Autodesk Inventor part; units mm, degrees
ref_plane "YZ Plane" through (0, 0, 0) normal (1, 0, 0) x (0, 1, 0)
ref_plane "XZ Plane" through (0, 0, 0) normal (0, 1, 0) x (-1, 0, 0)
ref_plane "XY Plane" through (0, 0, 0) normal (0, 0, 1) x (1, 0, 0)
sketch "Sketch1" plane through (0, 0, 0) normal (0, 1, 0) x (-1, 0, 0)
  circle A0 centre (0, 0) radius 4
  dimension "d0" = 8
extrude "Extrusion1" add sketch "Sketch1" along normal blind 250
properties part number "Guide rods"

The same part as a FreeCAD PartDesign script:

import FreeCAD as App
import Part
import Sketcher

V = App.Vector
Q = App.Units.Quantity

doc = App.newDocument("Part")
body = doc.addObject("PartDesign::Body", "Body")

# Sketch on XZ plane
sketch1 = doc.addObject("Sketcher::SketchObject", "Sketch")
body.addObject(sketch1)
sketch1.AttachmentSupport = (doc.XZ_Plane, [""])
sketch1.MapMode = "FlatFace"
sketch1.addGeometry(Part.Circle(V(0, 0, 0), V(0, 0, 1), 4), False)
sketch1.addConstraint(Sketcher.Constraint("Coincident", 0, 3, -1, 1))
sketch1.addConstraint(Sketcher.Constraint("Diameter", 0, Q("8 mm")))
pad1 = doc.addObject("PartDesign::Pad", "Pad")
body.addObject(pad1)
pad1.Profile = sketch1
pad1.Length = 250
pad1.Reversed = True

doc.recompute()
